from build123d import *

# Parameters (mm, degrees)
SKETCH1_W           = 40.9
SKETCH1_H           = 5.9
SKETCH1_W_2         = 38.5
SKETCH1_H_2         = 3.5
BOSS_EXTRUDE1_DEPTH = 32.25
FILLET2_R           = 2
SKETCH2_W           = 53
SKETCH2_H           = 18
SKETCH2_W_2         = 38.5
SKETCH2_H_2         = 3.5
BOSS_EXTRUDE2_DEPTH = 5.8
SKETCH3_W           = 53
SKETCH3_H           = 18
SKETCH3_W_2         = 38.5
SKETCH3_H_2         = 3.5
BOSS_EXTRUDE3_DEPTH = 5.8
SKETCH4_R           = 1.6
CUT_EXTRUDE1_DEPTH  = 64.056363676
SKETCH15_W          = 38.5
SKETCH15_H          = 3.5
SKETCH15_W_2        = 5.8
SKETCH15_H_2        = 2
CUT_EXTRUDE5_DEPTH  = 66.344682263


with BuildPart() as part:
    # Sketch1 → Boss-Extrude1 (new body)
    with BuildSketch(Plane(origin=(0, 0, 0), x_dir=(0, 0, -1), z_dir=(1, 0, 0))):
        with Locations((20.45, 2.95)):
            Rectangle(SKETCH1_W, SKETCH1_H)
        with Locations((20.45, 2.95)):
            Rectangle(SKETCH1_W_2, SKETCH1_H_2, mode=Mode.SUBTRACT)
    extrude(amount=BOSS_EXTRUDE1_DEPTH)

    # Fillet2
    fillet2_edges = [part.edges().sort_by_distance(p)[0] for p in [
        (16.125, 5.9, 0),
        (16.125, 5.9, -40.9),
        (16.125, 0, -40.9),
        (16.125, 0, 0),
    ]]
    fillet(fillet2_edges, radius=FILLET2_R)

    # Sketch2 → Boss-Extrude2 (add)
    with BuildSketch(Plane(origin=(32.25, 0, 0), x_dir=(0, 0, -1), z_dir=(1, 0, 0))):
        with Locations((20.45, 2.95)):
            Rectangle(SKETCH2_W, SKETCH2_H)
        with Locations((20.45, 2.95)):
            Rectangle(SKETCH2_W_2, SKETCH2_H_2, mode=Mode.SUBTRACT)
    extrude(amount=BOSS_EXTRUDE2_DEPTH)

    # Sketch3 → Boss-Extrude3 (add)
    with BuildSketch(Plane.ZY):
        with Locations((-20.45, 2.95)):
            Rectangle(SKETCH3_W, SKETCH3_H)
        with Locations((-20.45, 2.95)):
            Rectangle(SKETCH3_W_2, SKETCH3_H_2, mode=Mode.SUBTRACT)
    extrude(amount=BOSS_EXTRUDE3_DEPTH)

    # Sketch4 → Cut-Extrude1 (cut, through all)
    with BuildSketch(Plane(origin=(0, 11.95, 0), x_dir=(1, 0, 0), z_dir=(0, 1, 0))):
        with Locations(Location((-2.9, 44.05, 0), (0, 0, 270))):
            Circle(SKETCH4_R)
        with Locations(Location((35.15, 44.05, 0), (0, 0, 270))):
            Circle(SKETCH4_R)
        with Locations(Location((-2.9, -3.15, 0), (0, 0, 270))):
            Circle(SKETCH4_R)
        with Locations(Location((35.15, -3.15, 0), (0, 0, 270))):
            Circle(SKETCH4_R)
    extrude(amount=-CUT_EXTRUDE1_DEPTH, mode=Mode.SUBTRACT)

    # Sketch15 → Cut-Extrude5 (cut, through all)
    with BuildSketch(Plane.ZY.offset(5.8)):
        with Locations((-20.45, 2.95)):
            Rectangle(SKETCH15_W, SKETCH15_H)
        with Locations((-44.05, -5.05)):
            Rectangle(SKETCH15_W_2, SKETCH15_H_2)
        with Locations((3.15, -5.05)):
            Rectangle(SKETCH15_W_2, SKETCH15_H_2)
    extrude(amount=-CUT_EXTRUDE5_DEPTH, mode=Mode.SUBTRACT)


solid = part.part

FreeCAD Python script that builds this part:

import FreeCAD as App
import Part
import Sketcher
from FreeCAD import Vector


def edges_at(feature, points):
    """Names of the edges that pass closest to the given points."""
    edges = feature.Shape.Edges
    near = lambda p: min(range(len(edges)), key=lambda i: edges[i].distToShape(Part.Vertex(*p))[0])
    return sorted({f"Edge{near(p) + 1}" for p in points})


def add_polygon(sketch, points):
    """Adds a closed chain of lines whose ends are joined by coincident constraints."""
    first, n = sketch.GeometryCount, len(points)
    for a, b in zip(points, points[1:] + points[:1]):
        sketch.addGeometry(Part.LineSegment(App.Vector(*a, 0), App.Vector(*b, 0)), False)
    for i in range(n):
        sketch.addConstraint(Sketcher.Constraint("Coincident", first + i, 2, first + (i + 1) % n, 1))

doc = App.newDocument("Part")
body = doc.addObject("PartDesign::Body", "Body")

# Sketch on YZ plane
sketch1 = body.newObject("Sketcher::SketchObject", "Sketch")
sketch1.AttachmentSupport = (doc.getObject("YZ_Plane"), [""])
sketch1.MapMode = "FlatFace"
add_polygon(sketch1, [(5.9, 0), (0, 0), (0, -40.9), (5.9, -40.9)])  # lines 0-3
add_polygon(sketch1, [(1.2, -39.7), (1.2, -1.2), (4.7, -1.2), (4.7, -39.7)])  # lines 4-7
sketch1.addConstraint([
    Sketcher.Constraint("Horizontal", 0),
    Sketcher.Constraint("Vertical", 1),
    Sketcher.Constraint("Horizontal", 2),
    Sketcher.Constraint("Vertical", 3),
    Sketcher.Constraint("Vertical", 4),
    Sketcher.Constraint("Horizontal", 5),
    Sketcher.Constraint("Vertical", 6),
    Sketcher.Constraint("Horizontal", 7),
    Sketcher.Constraint("Coincident", 0, 2, -1, 1),
    Sketcher.Constraint("DistanceX", 0, 2, 0, 1, 5.9),
    Sketcher.Constraint("DistanceX", 5, 1, 5, 2, 3.5),
    Sketcher.Constraint("DistanceY", 1, 2, 1, 1, 40.9),
    Sketcher.Constraint("DistanceY", 4, 1, 4, 2, 38.5),
    Sketcher.Constraint("DistanceX", -1, 1, 4, 2, 1.2),
    Sketcher.Constraint("DistanceY", 4, 2, -1, 1, 1.2),
])
pad1 = body.newObject("PartDesign::Pad", "Pad")
pad1.Profile = sketch1
pad1.Length = 32.25
doc.recompute()

fillet = body.newObject("PartDesign::Fillet", "Fillet")
fillet.Base = (pad1, edges_at(pad1, [
    (16.125, 5.9, 0),
    (16.125, 5.9, -40.9),
    (16.125, 0, -40.9),
    (16.125, 0, 0),
]))
fillet.Radius = 2

# Sketch on YZ plane
sketch2 = body.newObject("Sketcher::SketchObject", "Sketch001")
sketch2.AttachmentSupport = (doc.getObject("YZ_Plane"), [""])
sketch2.MapMode = "FlatFace"
sketch2.AttachmentOffset = App.Placement(Vector(0, 0, 32.25), App.Rotation())
add_polygon(sketch2, [(11.95, 6.05), (-6.05, 6.05), (-6.05, -46.95), (11.95, -46.95)])  # lines 0-3
add_polygon(sketch2, [(1.2, -39.7), (1.2, -1.2), (4.7, -1.2), (4.7, -39.7)])  # lines 4-7
sketch2.addConstraint([
    Sketcher.Constraint("Horizontal", 0),
    Sketcher.Constraint("Vertical", 1),
    Sketcher.Constraint("Horizontal", 2),
    Sketcher.Constraint("Vertical", 3),
    Sketcher.Constraint("Vertical", 4),
    Sketcher.Constraint("Horizontal", 5),
    Sketcher.Constraint("Vertical", 6),
    Sketcher.Constraint("Horizontal", 7),
    Sketcher.Constraint("DistanceX", 0, 2, 0, 1, 18.0),
    Sketcher.Constraint("DistanceY", 1, 2, 1, 1, 53.0),
    Sketcher.Constraint("DistanceX", 5, 1, 5, 2, 3.5),
    Sketcher.Constraint("DistanceY", 4, 1, 4, 2, 38.5),
    Sketcher.Constraint("DistanceX", -1, 1, 4, 2, 1.2),
    Sketcher.Constraint("DistanceY", 4, 2, -1, 1, 1.2),
    Sketcher.Constraint("DistanceX", 0, 2, -1, 1, 6.05),
    Sketcher.Constraint("DistanceY", -1, 1, 0, 2, 6.05),
])
pad2 = body.newObject("PartDesign::Pad", "Pad001")
pad2.Profile = sketch2
pad2.Length = 5.8

# Sketch on YZ plane
sketch3 = body.newObject("Sketcher::SketchObject", "Sketch002")
sketch3.AttachmentSupport = (doc.getObject("YZ_Plane"), [""])
sketch3.MapMode = "FlatFace"
add_polygon(sketch3, [(11.95, -46.95), (-6.05, -46.95), (-6.05, 6.05), (11.95, 6.05)])  # lines 0-3
add_polygon(sketch3, [(1.2, -1.2), (1.2, -39.7), (4.7, -39.7), (4.7, -1.2)])  # lines 4-7
sketch3.addConstraint([
    Sketcher.Constraint("Horizontal", 0),
    Sketcher.Constraint("Vertical", 1),
    Sketcher.Constraint("Horizontal", 2),
    Sketcher.Constraint("Vertical", 3),
    Sketcher.Constraint("Vertical", 4),
    Sketcher.Constraint("Horizontal", 5),
    Sketcher.Constraint("Vertical", 6),
    Sketcher.Constraint("Horizontal", 7),
    Sketcher.Constraint("DistanceX", 0, 2, 0, 1, 18.0),
    Sketcher.Constraint("DistanceY", 1, 1, 1, 2, 53.0),
    Sketcher.Constraint("DistanceX", 5, 1, 5, 2, 3.5),
    Sketcher.Constraint("DistanceY", 4, 2, 4, 1, 38.5),
    Sketcher.Constraint("DistanceX", -1, 1, 4, 2, 1.2),
    Sketcher.Constraint("DistanceY", 4, 2, -1, 1, 39.7),
    Sketcher.Constraint("DistanceX", 0, 2, -1, 1, 6.05),
    Sketcher.Constraint("DistanceY", 0, 2, -1, 1, 46.95),
])
pad3 = body.newObject("PartDesign::Pad", "Pad002")
pad3.Profile = sketch3
pad3.Length = 5.8
pad3.Reversed = True

# Sketch on XZ plane
sketch4 = body.newObject("Sketcher::SketchObject", "Sketch003")
sketch4.AttachmentSupport = (doc.getObject("XZ_Plane"), [""])
sketch4.MapMode = "FlatFace"
sketch4.AttachmentOffset = App.Placement(Vector(0, 0, -11.95), App.Rotation())
sketch4.addGeometry([
    Part.Circle(Vector(-2.9, -44.05, 0), Vector(0, 0, 1), 1.6),
    Part.Circle(Vector(35.15, -44.05, 0), Vector(0, 0, 1), 1.6),
    Part.Circle(Vector(-2.9, 3.15, 0), Vector(0, 0, 1), 1.6),
    Part.Circle(Vector(35.15, 3.15, 0), Vector(0, 0, 1), 1.6),
], False)
sketch4.addConstraint([
    Sketcher.Constraint("Equal", 0, 1),
    Sketcher.Constraint("Equal", 1, 2),
    Sketcher.Constraint("Equal", 2, 3),
    Sketcher.Constraint("Horizontal", 0, 3, 1, 3),
    Sketcher.Constraint("Horizontal", 2, 3, 3, 3),
    Sketcher.Constraint("Vertical", 0, 3, 2, 3),
    Sketcher.Constraint("Vertical", 1, 3, 3, 3),
    Sketcher.Constraint("Diameter", 0, 3.2),
    Sketcher.Constraint("DistanceX", 0, 3, -1, 1, 2.9),
    Sketcher.Constraint("DistanceY", 0, 3, 2, 3, 47.2),
    Sketcher.Constraint("DistanceY", 0, 3, -1, 1, 44.05),
    Sketcher.Constraint("DistanceX", -1, 1, 1, 3, 35.15),
])
pocket1 = body.newObject("PartDesign::Pocket", "Pocket")
pocket1.Profile = sketch4
pocket1.Type = "ThroughAll"
pocket1.Reversed = True

# Sketch on YZ plane
sketch5 = body.newObject("Sketcher::SketchObject", "Sketch004")
sketch5.AttachmentSupport = (doc.getObject("YZ_Plane"), [""])
sketch5.MapMode = "FlatFace"
sketch5.AttachmentOffset = App.Placement(Vector(0, 0, -5.8), App.Rotation())
add_polygon(sketch5, [(4.7, -39.7), (1.2, -39.7), (1.2, -1.2), (4.7, -1.2)])  # lines 0-3
add_polygon(sketch5, [(-4.05, -46.95), (-6.05, -46.95), (-6.05, -41.15), (-4.05, -41.15)])  # lines 4-7
add_polygon(sketch5, [(-4.05, 0.25), (-6.05, 0.25), (-6.05, 6.05), (-4.05, 6.05)])  # lines 8-11
sketch5.addConstraint([
    Sketcher.Constraint("Horizontal", 0),
    Sketcher.Constraint("Vertical", 1),
    Sketcher.Constraint("Horizontal", 2),
    Sketcher.Constraint("Vertical", 3),
    Sketcher.Constraint("Horizontal", 4),
    Sketcher.Constraint("Vertical", 5),
    Sketcher.Constraint("Horizontal", 6),
    Sketcher.Constraint("Vertical", 7),
    Sketcher.Constraint("Horizontal", 8),
    Sketcher.Constraint("Vertical", 9),
    Sketcher.Constraint("Horizontal", 10),
    Sketcher.Constraint("Vertical", 11),
    Sketcher.Constraint("Vertical", 5, 2, 8, 2),
    Sketcher.Constraint("Vertical", 7, 2, 10, 2),
    Sketcher.Constraint("Equal", 7, 9),
    Sketcher.Constraint("DistanceX", 4, 2, 4, 1, 2.0),
    Sketcher.Constraint("DistanceX", 0, 2, 0, 1, 3.5),
    Sketcher.Constraint("DistanceY", 1, 1, 1, 2, 38.5),
    Sketcher.Constraint("DistanceY", 5, 1, 5, 2, 5.8),
    Sketcher.Constraint("DistanceX", -1, 1, 0, 2, 1.2),
    Sketcher.Constraint("DistanceY", 0, 2, -1, 1, 39.7),
    Sketcher.Constraint("DistanceY", 5, 2, 8, 2, 41.4),
    Sketcher.Constraint("DistanceX", 4, 2, -1, 1, 6.05),
    Sketcher.Constraint("DistanceY", 4, 2, -1, 1, 46.95),
])
pocket2 = body.newObject("PartDesign::Pocket", "Pocket001")
pocket2.Profile = sketch5
pocket2.Type = "ThroughAll"
pocket2.Reversed = True

doc.recompute()
